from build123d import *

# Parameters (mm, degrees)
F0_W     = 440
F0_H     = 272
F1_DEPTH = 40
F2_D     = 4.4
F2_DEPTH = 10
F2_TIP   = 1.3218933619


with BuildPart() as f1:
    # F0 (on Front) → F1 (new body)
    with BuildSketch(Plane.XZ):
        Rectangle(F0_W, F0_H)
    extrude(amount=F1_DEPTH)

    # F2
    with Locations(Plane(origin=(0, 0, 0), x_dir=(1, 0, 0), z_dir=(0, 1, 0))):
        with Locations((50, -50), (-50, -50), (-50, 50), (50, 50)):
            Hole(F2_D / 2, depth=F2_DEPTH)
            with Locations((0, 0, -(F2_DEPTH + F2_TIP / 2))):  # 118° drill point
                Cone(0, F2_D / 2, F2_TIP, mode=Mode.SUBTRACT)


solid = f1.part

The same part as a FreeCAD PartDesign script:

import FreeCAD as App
import Part
import Sketcher
from FreeCAD import Vector
Q = App.Units.Quantity

doc = App.newDocument("Part")
params = doc.addObject("Spreadsheet::Sheet", "Params")
for row, (alias, value) in enumerate([
    ("sketch1_width", "440 mm"),
    ("sketch1_height", "272 mm"),
    ("pad1_length", "40 mm"),
    ("sketch2_diameter", "4.4 mm"),
    ("hole_diameter", "4.4 mm"),
    ("hole_depth", "10 mm"),
], start=1):
    params.set(f"A{row}", alias)
    params.set(f"B{row}", "=" + value)
    params.setAlias(f"B{row}", alias)

body = doc.addObject("PartDesign::Body", "Body")

sketch1 = body.newObject("Sketcher::SketchObject", "Sketch")
sketch1.AttachmentSupport = (doc.getObject("XZ_Plane"), [""])
sketch1.MapMode = "FlatFace"
sketch1.addGeometry(Part.LineSegment(Vector(-220, 136, 0), Vector(-220, -136, 0)), False)
sketch1.addGeometry(Part.LineSegment(Vector(-220, -136, 0), Vector(220, -136, 0)), False)
sketch1.addGeometry(Part.LineSegment(Vector(220, -136, 0), Vector(220, 136, 0)), False)
sketch1.addGeometry(Part.LineSegment(Vector(220, 136, 0), Vector(-220, 136, 0)), False)
sketch1.addConstraint(Sketcher.Constraint("Coincident", 0, 2, 1, 1))
sketch1.addConstraint(Sketcher.Constraint("Coincident", 1, 2, 2, 1))
sketch1.addConstraint(Sketcher.Constraint("Coincident", 2, 2, 3, 1))
sketch1.addConstraint(Sketcher.Constraint("Coincident", 3, 2, 0, 1))
sketch1.addConstraint(Sketcher.Constraint("Vertical", 0))
sketch1.addConstraint(Sketcher.Constraint("Horizontal", 1))
sketch1.addConstraint(Sketcher.Constraint("Vertical", 2))
sketch1.addConstraint(Sketcher.Constraint("Horizontal", 3))
sketch1.addConstraint(Sketcher.Constraint("Symmetric", 0, 2, 2, 2, -1, 1))
sketch1.addConstraint(Sketcher.Constraint("DistanceX", 1, 1, 1, 2, Q("440 mm")))
sketch1.addConstraint(Sketcher.Constraint("DistanceY", 0, 2, 0, 1, Q("272 mm")))
sketch1.setExpression("Constraints[9]", "Params.sketch1_width")
sketch1.setExpression("Constraints[10]", "Params.sketch1_height")
pad1 = body.newObject("PartDesign::Pad", "Pad")
pad1.Profile = sketch1
pad1.setExpression("Length", "Params.pad1_length")

sketch2 = body.newObject("Sketcher::SketchObject", "Sketch001")
sketch2.AttachmentSupport = (doc.getObject("XZ_Plane"), [""])
sketch2.MapMode = "FlatFace"
sketch2.addGeometry(Part.Circle(Vector(50, 50, 0), Vector(0, 0, 1), 2.2), False)
sketch2.addGeometry(Part.Circle(Vector(-50, 50, 0), Vector(0, 0, 1), 2.2), False)
sketch2.addGeometry(Part.Circle(Vector(-50, -50, 0), Vector(0, 0, 1), 2.2), False)
sketch2.addGeometry(Part.Circle(Vector(50, -50, 0), Vector(0, 0, 1), 2.2), False)
sketch2.addConstraint(Sketcher.Constraint("Equal", 0, 1))
sketch2.addConstraint(Sketcher.Constraint("Equal", 1, 2))
sketch2.addConstraint(Sketcher.Constraint("Equal", 2, 3))
sketch2.addConstraint(Sketcher.Constraint("Symmetric", 0, 3, 2, 3, -1, 1))
sketch2.addConstraint(Sketcher.Constraint("Symmetric", 1, 3, 3, 3, -1, 1))
sketch2.addConstraint(Sketcher.Constraint("Symmetric", 0, 3, 1, 3, -2))
sketch2.addConstraint(Sketcher.Constraint("Diameter", 0, Q("4.4 mm")))
sketch2.addConstraint(Sketcher.Constraint("DistanceX", -1, 1, 0, 3, Q("50 mm")))
sketch2.addConstraint(Sketcher.Constraint("DistanceY", -1, 1, 0, 3, Q("50 mm")))
sketch2.setExpression("Constraints[6]", "Params.sketch2_diameter")
doc.recompute()
hole = body.newObject("PartDesign::Hole", "Hole")
hole.Profile = sketch2
hole.ThreadType = "None"
hole.setExpression("Diameter", "Params.hole_diameter")
hole.DepthType = "Dimension"
hole.setExpression("Depth", "Params.hole_depth")
hole.DrillPoint = "Angled"
hole.DrillPointAngle = 118
hole.Reversed = True

doc.recompute()
